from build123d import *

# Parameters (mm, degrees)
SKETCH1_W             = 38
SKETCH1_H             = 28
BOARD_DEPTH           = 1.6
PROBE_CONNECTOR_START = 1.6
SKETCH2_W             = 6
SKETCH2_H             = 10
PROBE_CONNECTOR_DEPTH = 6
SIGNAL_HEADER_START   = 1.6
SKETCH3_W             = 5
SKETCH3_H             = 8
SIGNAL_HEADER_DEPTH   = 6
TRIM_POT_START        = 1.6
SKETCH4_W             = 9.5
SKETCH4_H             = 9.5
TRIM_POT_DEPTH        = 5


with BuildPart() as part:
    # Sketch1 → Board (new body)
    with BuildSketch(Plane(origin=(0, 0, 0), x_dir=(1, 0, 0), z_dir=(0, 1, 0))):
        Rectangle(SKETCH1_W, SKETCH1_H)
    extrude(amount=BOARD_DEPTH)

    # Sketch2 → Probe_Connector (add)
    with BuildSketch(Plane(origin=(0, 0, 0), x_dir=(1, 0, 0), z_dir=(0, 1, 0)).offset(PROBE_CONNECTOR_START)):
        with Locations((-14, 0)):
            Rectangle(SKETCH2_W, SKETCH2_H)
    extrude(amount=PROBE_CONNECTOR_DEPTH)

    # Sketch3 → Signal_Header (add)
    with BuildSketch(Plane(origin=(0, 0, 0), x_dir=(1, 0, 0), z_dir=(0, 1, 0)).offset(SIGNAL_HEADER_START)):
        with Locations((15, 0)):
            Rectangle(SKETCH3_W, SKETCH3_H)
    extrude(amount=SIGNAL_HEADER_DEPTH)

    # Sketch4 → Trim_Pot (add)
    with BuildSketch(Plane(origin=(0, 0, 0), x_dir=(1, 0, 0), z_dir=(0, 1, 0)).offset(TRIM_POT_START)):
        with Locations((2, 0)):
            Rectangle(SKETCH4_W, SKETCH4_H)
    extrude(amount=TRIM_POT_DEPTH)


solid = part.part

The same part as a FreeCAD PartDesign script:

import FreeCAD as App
import Part
import Sketcher

doc = App.newDocument("Part")
body = doc.addObject("PartDesign::Body", "Body")

# Sketch on XZ plane
sketch1 = doc.addObject("Sketcher::SketchObject", "Sketch")
body.addObject(sketch1)
sketch1.AttachmentSupport = (doc.XZ_Plane, [""])
sketch1.MapMode = "FlatFace"
sketch1.addGeometry([
    Part.LineSegment(App.Vector(-19, -14, 0), App.Vector(-19, 14, 0)),
    Part.LineSegment(App.Vector(-19, 14, 0), App.Vector(19, 14, 0)),
    Part.LineSegment(App.Vector(19, 14, 0), App.Vector(19, -14, 0)),
    Part.LineSegment(App.Vector(19, -14, 0), App.Vector(-19, -14, 0)),
], False)
sketch1.addConstraint([
    Sketcher.Constraint("Coincident", 0, 2, 1, 1),
    Sketcher.Constraint("Coincident", 1, 2, 2, 1),
    Sketcher.Constraint("Coincident", 2, 2, 3, 1),
    Sketcher.Constraint("Coincident", 3, 2, 0, 1),
    Sketcher.Constraint("Vertical", 0),
    Sketcher.Constraint("Horizontal", 1),
    Sketcher.Constraint("Vertical", 2),
    Sketcher.Constraint("Horizontal", 3),
    Sketcher.Constraint("Symmetric", 0, 2, 2, 2, -1, 1),
    Sketcher.Constraint("DistanceX", 1, 1, 1, 2, 38.0),
    Sketcher.Constraint("DistanceY", 0, 1, 0, 2, 28.0),
])
pad1 = doc.addObject("PartDesign::Pad", "Pad")
body.addObject(pad1)
pad1.Profile = sketch1
pad1.Length = 1.6
pad1.Reversed = True

# Sketch on XZ plane
sketch2 = doc.addObject("Sketcher::SketchObject", "Sketch001")
body.addObject(sketch2)
sketch2.AttachmentSupport = (doc.XZ_Plane, [""])
sketch2.MapMode = "FlatFace"
sketch2.AttachmentOffset = App.Placement(App.Vector(0, 0, -1.6), App.Rotation())
sketch2.addGeometry([
    Part.LineSegment(App.Vector(-17, -5, 0), App.Vector(-17, 5, 0)),
    Part.LineSegment(App.Vector(-17, 5, 0), App.Vector(-11, 5, 0)),
    Part.LineSegment(App.Vector(-11, 5, 0), App.Vector(-11, -5, 0)),
    Part.LineSegment(App.Vector(-11, -5, 0), App.Vector(-17, -5, 0)),
], False)
sketch2.addConstraint([
    Sketcher.Constraint("Coincident", 0, 2, 1, 1),
    Sketcher.Constraint("Coincident", 1, 2, 2, 1),
    Sketcher.Constraint("Coincident", 2, 2, 3, 1),
    Sketcher.Constraint("Coincident", 3, 2, 0, 1),
    Sketcher.Constraint("Vertical", 0),
    Sketcher.Constraint("Horizontal", 1),
    Sketcher.Constraint("Vertical", 2),
    Sketcher.Constraint("Horizontal", 3),
    Sketcher.Constraint("DistanceX", 1, 1, 1, 2, 6.0),
    Sketcher.Constraint("DistanceY", 0, 1, 0, 2, 10.0),
    Sketcher.Constraint("DistanceX", 0, 2, -1, 1, 17.0),
    Sketcher.Constraint("DistanceY", -1, 1, 0, 2, 5.0),
])
pad2 = doc.addObject("PartDesign::Pad", "Pad001")
body.addObject(pad2)
pad2.Profile = sketch2
pad2.Length = 6
pad2.Reversed = True

# Sketch on XZ plane
sketch3 = doc.addObject("Sketcher::SketchObject", "Sketch002")
body.addObject(sketch3)
sketch3.AttachmentSupport = (doc.XZ_Plane, [""])
sketch3.MapMode = "FlatFace"
sketch3.AttachmentOffset = App.Placement(App.Vector(0, 0, -1.6), App.Rotation())
sketch3.addGeometry([
    Part.LineSegment(App.Vector(12, -4, 0), App.Vector(12, 4, 0)),
    Part.LineSegment(App.Vector(12, 4, 0), App.Vector(18, 4, 0)),
    Part.LineSegment(App.Vector(18, 4, 0), App.Vector(18, -4, 0)),
    Part.LineSegment(App.Vector(18, -4, 0), App.Vector(12, -4, 0)),
], False)
sketch3.addConstraint([
    Sketcher.Constraint("Coincident", 0, 2, 1, 1),
    Sketcher.Constraint("Coincident", 1, 2, 2, 1),
    Sketcher.Constraint("Coincident", 2, 2, 3, 1),
    Sketcher.Constraint("Coincident", 3, 2, 0, 1),
    Sketcher.Constraint("Vertical", 0),
    Sketcher.Constraint("Horizontal", 1),
    Sketcher.Constraint("Vertical", 2),
    Sketcher.Constraint("Horizontal", 3),
    Sketcher.Constraint("DistanceX", 1, 1, 1, 2, 5.0),
    Sketcher.Constraint("DistanceY", 0, 1, 0, 2, 8.0),
    Sketcher.Constraint("DistanceY", -1, 1, 0, 2, 4.0),
    Sketcher.Constraint("DistanceX", -1, 1, 0, 2, 12.5),
])
pad3 = doc.addObject("PartDesign::Pad", "Pad002")
body.addObject(pad3)
pad3.Profile = sketch3
pad3.Length = 6
pad3.Reversed = True

# Sketch on XZ plane
sketch4 = doc.addObject("Sketcher::SketchObject", "Sketch003")
body.addObject(sketch4)
sketch4.AttachmentSupport = (doc.XZ_Plane, [""])
sketch4.MapMode = "FlatFace"
sketch4.AttachmentOffset = App.Placement(App.Vector(0, 0, -1.6), App.Rotation())
sketch4.addGeometry([
    Part.LineSegment(App.Vector(-3, -5, 0), App.Vector(-3, 5, 0)),
    Part.LineSegment(App.Vector(-3, 5, 0), App.Vector(7, 5, 0)),
    Part.LineSegment(App.Vector(7, 5, 0), App.Vector(7, -5, 0)),
    Part.LineSegment(App.Vector(7, -5, 0), App.Vector(-3, -5, 0)),
], False)
sketch4.addConstraint([
    Sketcher.Constraint("Coincident", 0, 2, 1, 1),
    Sketcher.Constraint("Coincident", 1, 2, 2, 1),
    Sketcher.Constraint("Coincident", 2, 2, 3, 1),
    Sketcher.Constraint("Coincident", 3, 2, 0, 1),
    Sketcher.Constraint("Vertical", 0),
    Sketcher.Constraint("Horizontal", 1),
    Sketcher.Constraint("Vertical", 2),
    Sketcher.Constraint("Horizontal", 3),
    Sketcher.Constraint("Equal", 3, 0),
    Sketcher.Constraint("DistanceX", 1, 1, 1, 2, 9.5),
    Sketcher.Constraint("DistanceX", 0, 2, -1, 1, 2.75),
    Sketcher.Constraint("DistanceY", -1, 1, 0, 2, 4.75),
])
pad4 = doc.addObject("PartDesign::Pad", "Pad003")
body.addObject(pad4)
pad4.Profile = sketch4
pad4.Length = 5
pad4.Reversed = True

doc.recompute()
